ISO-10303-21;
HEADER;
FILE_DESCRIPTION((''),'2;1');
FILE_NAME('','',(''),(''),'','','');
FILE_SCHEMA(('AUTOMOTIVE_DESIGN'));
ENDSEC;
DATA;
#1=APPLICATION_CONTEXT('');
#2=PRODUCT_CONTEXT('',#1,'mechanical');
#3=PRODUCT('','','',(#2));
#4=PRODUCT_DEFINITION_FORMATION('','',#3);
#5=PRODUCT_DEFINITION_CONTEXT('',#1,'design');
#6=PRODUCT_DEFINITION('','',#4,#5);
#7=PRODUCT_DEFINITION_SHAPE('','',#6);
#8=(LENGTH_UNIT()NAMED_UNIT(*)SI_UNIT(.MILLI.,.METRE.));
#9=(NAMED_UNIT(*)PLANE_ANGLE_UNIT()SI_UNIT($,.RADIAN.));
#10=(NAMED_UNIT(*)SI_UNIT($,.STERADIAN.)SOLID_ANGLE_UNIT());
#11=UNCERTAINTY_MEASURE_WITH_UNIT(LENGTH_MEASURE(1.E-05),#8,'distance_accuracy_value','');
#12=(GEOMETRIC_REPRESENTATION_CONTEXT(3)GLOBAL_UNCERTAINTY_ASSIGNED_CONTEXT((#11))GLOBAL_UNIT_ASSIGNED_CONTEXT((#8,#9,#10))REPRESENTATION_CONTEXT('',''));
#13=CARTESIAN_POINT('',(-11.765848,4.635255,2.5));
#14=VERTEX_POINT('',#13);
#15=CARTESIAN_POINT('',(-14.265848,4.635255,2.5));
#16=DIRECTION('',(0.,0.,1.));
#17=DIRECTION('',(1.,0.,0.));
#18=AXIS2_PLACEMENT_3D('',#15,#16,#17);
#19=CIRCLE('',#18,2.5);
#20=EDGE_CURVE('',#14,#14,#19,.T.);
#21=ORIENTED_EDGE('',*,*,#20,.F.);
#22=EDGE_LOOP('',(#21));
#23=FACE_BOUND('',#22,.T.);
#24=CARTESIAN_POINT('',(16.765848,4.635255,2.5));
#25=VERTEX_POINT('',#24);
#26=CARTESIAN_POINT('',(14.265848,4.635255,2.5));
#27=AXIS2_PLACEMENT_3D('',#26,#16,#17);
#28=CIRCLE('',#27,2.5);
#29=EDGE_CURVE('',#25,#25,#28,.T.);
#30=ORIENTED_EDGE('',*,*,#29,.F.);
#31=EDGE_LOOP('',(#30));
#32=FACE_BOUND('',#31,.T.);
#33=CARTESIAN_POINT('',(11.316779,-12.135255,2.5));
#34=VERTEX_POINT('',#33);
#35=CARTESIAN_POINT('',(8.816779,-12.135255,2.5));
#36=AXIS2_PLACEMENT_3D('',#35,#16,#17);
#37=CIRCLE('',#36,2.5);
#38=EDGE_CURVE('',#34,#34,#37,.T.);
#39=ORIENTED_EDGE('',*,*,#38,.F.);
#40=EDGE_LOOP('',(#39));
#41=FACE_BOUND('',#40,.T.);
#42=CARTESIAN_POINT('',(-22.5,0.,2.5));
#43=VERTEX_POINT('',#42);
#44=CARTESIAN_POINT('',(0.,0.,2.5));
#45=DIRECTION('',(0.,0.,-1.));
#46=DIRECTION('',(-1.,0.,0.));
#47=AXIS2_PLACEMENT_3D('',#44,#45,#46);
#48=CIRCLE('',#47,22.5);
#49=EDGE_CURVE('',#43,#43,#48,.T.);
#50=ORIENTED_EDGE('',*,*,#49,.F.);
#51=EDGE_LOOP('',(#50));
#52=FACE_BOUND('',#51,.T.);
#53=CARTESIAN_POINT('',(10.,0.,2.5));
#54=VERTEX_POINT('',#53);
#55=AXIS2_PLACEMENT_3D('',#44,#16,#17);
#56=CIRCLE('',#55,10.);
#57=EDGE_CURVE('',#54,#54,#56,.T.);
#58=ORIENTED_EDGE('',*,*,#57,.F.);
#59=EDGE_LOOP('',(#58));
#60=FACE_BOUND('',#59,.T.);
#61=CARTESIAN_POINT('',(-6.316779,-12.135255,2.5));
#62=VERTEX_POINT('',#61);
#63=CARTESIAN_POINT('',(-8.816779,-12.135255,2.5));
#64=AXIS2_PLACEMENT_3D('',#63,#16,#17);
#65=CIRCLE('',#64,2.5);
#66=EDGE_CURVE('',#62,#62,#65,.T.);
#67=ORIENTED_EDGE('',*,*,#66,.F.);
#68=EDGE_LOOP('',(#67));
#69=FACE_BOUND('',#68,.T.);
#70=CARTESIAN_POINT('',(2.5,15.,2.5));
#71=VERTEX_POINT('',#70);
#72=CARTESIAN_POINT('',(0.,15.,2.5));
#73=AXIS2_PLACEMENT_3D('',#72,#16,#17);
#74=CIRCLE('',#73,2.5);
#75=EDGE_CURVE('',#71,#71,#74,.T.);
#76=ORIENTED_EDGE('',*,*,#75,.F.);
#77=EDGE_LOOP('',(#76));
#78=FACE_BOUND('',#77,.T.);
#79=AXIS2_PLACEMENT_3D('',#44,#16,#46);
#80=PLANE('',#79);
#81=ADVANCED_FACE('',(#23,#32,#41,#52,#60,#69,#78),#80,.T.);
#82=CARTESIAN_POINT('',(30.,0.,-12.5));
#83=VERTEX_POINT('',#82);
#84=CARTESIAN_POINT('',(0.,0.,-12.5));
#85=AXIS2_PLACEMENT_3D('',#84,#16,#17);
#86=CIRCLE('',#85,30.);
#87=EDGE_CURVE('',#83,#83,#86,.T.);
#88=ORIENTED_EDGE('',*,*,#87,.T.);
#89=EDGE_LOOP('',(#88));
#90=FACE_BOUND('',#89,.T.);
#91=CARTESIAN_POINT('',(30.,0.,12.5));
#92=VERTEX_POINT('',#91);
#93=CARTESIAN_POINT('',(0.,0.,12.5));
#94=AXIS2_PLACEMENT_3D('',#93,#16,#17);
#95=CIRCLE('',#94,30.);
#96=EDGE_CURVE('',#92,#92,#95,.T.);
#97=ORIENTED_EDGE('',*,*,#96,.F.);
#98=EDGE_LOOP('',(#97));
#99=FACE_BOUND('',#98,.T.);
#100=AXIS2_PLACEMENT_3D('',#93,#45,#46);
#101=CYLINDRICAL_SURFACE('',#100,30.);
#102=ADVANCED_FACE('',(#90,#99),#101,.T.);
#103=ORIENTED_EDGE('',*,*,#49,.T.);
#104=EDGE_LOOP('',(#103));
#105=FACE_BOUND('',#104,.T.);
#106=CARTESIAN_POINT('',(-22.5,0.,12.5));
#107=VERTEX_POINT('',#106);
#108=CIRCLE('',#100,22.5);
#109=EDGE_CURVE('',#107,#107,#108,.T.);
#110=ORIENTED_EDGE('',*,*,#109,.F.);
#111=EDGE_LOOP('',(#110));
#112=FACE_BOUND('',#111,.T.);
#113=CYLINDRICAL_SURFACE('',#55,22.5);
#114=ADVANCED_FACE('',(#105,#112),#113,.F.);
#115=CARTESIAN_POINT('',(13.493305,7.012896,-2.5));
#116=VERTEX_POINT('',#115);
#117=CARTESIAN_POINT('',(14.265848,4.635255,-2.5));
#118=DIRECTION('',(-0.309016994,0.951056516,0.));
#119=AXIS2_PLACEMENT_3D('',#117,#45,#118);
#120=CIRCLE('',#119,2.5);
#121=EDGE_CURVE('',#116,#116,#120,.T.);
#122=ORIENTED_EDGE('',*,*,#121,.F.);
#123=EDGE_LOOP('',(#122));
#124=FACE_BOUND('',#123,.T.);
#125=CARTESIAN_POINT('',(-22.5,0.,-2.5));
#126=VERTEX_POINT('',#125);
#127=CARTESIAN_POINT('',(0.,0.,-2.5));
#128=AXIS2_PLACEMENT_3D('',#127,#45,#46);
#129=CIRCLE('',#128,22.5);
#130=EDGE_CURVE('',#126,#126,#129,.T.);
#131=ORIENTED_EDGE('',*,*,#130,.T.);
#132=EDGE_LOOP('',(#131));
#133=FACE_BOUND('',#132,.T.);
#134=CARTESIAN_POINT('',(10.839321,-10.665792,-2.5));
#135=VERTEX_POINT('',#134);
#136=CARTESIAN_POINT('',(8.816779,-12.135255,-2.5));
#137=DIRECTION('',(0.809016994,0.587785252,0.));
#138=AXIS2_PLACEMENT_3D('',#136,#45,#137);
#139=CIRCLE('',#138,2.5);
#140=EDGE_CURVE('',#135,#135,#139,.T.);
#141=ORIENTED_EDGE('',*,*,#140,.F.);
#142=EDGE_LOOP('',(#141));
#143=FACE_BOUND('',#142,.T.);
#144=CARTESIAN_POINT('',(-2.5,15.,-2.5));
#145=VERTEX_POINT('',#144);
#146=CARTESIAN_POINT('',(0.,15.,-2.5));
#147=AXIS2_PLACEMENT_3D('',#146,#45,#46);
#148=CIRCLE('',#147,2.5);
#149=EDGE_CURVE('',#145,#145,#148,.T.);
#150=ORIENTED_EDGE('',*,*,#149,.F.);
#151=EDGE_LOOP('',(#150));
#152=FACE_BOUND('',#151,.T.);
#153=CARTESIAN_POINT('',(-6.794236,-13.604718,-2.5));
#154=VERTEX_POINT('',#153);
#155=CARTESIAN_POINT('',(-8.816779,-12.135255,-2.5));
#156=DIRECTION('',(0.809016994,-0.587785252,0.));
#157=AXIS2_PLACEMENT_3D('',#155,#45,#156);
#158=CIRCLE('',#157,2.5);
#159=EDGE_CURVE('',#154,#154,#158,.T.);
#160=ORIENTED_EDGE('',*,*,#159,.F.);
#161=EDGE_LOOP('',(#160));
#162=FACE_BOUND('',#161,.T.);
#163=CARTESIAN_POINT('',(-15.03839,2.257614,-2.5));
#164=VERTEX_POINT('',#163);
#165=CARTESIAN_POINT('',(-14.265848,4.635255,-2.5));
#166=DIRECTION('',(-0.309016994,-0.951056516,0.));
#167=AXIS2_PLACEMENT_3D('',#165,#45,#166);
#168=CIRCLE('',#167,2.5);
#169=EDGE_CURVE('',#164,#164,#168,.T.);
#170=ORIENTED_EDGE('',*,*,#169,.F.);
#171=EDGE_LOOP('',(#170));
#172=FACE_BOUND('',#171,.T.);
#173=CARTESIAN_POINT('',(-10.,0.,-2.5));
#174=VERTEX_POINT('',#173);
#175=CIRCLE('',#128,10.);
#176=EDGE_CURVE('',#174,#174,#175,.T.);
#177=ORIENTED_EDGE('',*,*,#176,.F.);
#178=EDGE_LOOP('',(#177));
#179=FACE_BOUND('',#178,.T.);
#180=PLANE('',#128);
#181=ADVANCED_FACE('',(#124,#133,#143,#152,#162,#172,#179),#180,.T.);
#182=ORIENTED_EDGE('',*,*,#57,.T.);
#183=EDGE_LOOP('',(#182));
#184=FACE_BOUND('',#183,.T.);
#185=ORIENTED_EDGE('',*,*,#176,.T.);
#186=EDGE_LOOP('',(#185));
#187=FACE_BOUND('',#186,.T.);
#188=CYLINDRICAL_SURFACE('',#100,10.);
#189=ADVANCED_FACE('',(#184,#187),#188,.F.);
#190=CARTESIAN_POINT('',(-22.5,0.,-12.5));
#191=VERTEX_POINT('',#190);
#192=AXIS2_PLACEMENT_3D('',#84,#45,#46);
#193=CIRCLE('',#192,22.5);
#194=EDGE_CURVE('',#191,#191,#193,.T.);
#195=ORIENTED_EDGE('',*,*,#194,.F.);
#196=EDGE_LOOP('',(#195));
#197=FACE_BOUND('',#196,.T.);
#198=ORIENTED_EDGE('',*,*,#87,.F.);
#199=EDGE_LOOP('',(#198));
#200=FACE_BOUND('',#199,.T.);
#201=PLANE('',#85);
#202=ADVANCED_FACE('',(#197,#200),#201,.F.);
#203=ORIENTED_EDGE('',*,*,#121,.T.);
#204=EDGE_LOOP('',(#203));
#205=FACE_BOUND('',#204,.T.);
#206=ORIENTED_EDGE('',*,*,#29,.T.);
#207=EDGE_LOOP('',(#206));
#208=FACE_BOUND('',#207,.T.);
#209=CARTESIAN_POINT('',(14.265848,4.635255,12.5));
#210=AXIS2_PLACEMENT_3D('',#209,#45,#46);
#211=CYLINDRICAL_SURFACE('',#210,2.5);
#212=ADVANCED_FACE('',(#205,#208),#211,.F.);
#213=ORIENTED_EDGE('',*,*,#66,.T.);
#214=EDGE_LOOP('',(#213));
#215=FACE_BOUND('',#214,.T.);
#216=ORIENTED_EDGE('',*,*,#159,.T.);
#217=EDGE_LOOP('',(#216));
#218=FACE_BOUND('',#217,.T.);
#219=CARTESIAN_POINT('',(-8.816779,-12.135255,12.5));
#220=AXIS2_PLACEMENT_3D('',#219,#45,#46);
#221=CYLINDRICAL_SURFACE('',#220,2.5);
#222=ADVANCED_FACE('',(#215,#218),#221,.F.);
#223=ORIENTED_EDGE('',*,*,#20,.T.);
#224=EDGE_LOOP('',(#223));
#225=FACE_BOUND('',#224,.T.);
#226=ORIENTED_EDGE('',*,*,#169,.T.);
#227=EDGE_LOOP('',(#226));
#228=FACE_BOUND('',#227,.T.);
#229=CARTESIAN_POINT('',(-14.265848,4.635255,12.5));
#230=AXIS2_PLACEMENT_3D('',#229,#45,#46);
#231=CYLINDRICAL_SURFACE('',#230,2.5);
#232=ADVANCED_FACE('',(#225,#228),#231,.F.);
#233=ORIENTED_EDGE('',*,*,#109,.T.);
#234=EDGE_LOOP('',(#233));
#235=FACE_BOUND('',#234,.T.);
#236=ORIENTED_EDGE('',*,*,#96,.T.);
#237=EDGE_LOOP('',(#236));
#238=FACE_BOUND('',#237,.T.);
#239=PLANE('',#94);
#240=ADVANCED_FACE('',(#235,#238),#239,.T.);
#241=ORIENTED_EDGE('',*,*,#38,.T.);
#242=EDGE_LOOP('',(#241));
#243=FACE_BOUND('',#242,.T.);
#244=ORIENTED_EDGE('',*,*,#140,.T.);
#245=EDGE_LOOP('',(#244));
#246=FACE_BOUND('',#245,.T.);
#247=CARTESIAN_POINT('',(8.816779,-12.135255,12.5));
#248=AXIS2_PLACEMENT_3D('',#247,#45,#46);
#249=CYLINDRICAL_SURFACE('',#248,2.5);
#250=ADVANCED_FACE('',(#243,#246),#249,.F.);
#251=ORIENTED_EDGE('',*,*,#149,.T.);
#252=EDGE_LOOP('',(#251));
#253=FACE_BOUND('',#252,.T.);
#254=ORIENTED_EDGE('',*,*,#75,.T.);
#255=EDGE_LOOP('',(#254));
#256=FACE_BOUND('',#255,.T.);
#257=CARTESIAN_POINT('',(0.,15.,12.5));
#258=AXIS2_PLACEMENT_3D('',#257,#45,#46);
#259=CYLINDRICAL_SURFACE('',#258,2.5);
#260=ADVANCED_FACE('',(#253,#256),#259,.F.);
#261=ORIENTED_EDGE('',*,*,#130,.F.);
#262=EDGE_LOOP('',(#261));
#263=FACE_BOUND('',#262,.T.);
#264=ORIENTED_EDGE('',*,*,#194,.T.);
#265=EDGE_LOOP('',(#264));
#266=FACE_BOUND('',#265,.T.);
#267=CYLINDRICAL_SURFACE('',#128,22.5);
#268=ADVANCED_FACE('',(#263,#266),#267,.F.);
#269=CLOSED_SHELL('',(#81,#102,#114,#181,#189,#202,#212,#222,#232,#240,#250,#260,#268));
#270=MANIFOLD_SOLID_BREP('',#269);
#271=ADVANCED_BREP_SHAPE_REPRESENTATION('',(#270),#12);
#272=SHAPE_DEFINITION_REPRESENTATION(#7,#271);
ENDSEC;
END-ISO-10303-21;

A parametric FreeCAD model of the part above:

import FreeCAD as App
import Part
import Sketcher

doc = App.newDocument("Part")
body = doc.addObject("PartDesign::Body", "Body")

# Sketch on XY plane
sketch1 = doc.addObject("Sketcher::SketchObject", "Sketch")
body.addObject(sketch1)
sketch1.AttachmentSupport = (doc.XY_Plane, [""])
sketch1.MapMode = "FlatFace"
sketch1.addGeometry([
    Part.Circle(App.Vector(0, 0, 0), App.Vector(0, 0, 1), 30),
    Part.Circle(App.Vector(0, 0, 0), App.Vector(0, 0, 1), 10),
], False)
sketch1.addConstraint([
    Sketcher.Constraint("Coincident", 0, 3, -1, 1),
    Sketcher.Constraint("Coincident", 1, 3, -1, 1),
    Sketcher.Constraint("Diameter", 0, 60.0),
    Sketcher.Constraint("Diameter", 1, 20.0),
])
pad1 = doc.addObject("PartDesign::Pad", "Pad")
body.addObject(pad1)
pad1.Profile = sketch1
pad1.Length = 25
pad1.Midplane = True

# Sketch on XY plane
sketch2 = doc.addObject("Sketcher::SketchObject", "Sketch001")
body.addObject(sketch2)
sketch2.AttachmentSupport = (doc.XY_Plane, [""])
sketch2.MapMode = "FlatFace"
sketch2.AttachmentOffset = App.Placement(App.Vector(0, 0, -12.5), App.Rotation())
sketch2.addGeometry(Part.Circle(App.Vector(0, 0, 0), App.Vector(0, 0, 1), 22), False)
sketch2.addConstraint([
    Sketcher.Constraint("Coincident", 0, 3, -1, 1),
    Sketcher.Constraint("Diameter", 0, 45.0),
])
pocket1 = doc.addObject("PartDesign::Pocket", "Pocket")
body.addObject(pocket1)
pocket1.Profile = sketch2
pocket1.Length = 10
pocket1.Reversed = True
doc.recompute()

mirrored = doc.addObject("PartDesign::Mirrored", "Mirrored")
body.addObject(mirrored)
mirrored.Originals = [pocket1]
mirrored.MirrorPlane = (doc.XY_Plane, [""])
body.Tip = mirrored

# Sketch on XY plane
sketch3 = doc.addObject("Sketcher::SketchObject", "Sketch002")
body.addObject(sketch3)
sketch3.AttachmentSupport = (doc.XY_Plane, [""])
sketch3.MapMode = "FlatFace"
sketch3.AttachmentOffset = App.Placement(App.Vector(0, 0, -2.5), App.Rotation())
sketch3.addGeometry(Part.Circle(App.Vector(0, 15, 0), App.Vector(0, 0, 1), 2.5), False)
sketch3.addConstraint([
    Sketcher.Constraint("PointOnObject", 0, 3, -2),
    Sketcher.Constraint("Diameter", 0, 5.0),
    Sketcher.Constraint("DistanceY", -1, 1, 0, 3, 15.0),
])
pocket2 = doc.addObject("PartDesign::Pocket", "Pocket001")
body.addObject(pocket2)
pocket2.Profile = sketch3
pocket2.Type = "ThroughAll"
pocket2.Reversed = True
doc.recompute()

polarpattern = doc.addObject("PartDesign::PolarPattern", "PolarPattern")
body.addObject(polarpattern)
polarpattern.Originals = [pocket2]
polarpattern.Axis = (doc.Z_Axis, [""])
polarpattern.Angle = 360
polarpattern.Occurrences = 5
body.Tip = polarpattern
body2 = doc.addObject("PartDesign::Body", "Body001")
doc.recompute()

body2.BaseFeature = body
doc.recompute()

body3 = doc.addObject("PartDesign::Body", "Body002")
body3.BaseFeature = body
body3.Placement = App.Placement(App.Vector(0, 0, 0), App.Rotation(App.Vector(0, 0, 1), 72))
boolean = doc.addObject("PartDesign::Boolean", "Boolean")
body2.addObject(boolean)
boolean.Type = "Fuse"
boolean.addObjects([body3])
doc.recompute()

body4 = doc.addObject("PartDesign::Body", "Body003")
body4.BaseFeature = body
body4.Placement = App.Placement(App.Vector(0, 0, 0), App.Rotation(App.Vector(0, 0, 1), 144))
boolean2 = doc.addObject("PartDesign::Boolean", "Boolean001")
body2.addObject(boolean2)
boolean2.Type = "Fuse"
boolean2.addObjects([body4])
doc.recompute()

body5 = doc.addObject("PartDesign::Body", "Body004")
body5.BaseFeature = body
body5.Placement = App.Placement(App.Vector(0, 0, 0), App.Rotation(App.Vector(0, 0, 1), 216))
boolean3 = doc.addObject("PartDesign::Boolean", "Boolean002")
body2.addObject(boolean3)
boolean3.Type = "Fuse"
boolean3.addObjects([body5])
doc.recompute()

body.Placement = App.Placement(App.Vector(0, 0, 0), App.Rotation(App.Vector(0, 0, 1), 288))
boolean4 = doc.addObject("PartDesign::Boolean", "Boolean003")
body2.addObject(boolean4)
boolean4.Type = "Fuse"
boolean4.addObjects([body])

doc.recompute()
